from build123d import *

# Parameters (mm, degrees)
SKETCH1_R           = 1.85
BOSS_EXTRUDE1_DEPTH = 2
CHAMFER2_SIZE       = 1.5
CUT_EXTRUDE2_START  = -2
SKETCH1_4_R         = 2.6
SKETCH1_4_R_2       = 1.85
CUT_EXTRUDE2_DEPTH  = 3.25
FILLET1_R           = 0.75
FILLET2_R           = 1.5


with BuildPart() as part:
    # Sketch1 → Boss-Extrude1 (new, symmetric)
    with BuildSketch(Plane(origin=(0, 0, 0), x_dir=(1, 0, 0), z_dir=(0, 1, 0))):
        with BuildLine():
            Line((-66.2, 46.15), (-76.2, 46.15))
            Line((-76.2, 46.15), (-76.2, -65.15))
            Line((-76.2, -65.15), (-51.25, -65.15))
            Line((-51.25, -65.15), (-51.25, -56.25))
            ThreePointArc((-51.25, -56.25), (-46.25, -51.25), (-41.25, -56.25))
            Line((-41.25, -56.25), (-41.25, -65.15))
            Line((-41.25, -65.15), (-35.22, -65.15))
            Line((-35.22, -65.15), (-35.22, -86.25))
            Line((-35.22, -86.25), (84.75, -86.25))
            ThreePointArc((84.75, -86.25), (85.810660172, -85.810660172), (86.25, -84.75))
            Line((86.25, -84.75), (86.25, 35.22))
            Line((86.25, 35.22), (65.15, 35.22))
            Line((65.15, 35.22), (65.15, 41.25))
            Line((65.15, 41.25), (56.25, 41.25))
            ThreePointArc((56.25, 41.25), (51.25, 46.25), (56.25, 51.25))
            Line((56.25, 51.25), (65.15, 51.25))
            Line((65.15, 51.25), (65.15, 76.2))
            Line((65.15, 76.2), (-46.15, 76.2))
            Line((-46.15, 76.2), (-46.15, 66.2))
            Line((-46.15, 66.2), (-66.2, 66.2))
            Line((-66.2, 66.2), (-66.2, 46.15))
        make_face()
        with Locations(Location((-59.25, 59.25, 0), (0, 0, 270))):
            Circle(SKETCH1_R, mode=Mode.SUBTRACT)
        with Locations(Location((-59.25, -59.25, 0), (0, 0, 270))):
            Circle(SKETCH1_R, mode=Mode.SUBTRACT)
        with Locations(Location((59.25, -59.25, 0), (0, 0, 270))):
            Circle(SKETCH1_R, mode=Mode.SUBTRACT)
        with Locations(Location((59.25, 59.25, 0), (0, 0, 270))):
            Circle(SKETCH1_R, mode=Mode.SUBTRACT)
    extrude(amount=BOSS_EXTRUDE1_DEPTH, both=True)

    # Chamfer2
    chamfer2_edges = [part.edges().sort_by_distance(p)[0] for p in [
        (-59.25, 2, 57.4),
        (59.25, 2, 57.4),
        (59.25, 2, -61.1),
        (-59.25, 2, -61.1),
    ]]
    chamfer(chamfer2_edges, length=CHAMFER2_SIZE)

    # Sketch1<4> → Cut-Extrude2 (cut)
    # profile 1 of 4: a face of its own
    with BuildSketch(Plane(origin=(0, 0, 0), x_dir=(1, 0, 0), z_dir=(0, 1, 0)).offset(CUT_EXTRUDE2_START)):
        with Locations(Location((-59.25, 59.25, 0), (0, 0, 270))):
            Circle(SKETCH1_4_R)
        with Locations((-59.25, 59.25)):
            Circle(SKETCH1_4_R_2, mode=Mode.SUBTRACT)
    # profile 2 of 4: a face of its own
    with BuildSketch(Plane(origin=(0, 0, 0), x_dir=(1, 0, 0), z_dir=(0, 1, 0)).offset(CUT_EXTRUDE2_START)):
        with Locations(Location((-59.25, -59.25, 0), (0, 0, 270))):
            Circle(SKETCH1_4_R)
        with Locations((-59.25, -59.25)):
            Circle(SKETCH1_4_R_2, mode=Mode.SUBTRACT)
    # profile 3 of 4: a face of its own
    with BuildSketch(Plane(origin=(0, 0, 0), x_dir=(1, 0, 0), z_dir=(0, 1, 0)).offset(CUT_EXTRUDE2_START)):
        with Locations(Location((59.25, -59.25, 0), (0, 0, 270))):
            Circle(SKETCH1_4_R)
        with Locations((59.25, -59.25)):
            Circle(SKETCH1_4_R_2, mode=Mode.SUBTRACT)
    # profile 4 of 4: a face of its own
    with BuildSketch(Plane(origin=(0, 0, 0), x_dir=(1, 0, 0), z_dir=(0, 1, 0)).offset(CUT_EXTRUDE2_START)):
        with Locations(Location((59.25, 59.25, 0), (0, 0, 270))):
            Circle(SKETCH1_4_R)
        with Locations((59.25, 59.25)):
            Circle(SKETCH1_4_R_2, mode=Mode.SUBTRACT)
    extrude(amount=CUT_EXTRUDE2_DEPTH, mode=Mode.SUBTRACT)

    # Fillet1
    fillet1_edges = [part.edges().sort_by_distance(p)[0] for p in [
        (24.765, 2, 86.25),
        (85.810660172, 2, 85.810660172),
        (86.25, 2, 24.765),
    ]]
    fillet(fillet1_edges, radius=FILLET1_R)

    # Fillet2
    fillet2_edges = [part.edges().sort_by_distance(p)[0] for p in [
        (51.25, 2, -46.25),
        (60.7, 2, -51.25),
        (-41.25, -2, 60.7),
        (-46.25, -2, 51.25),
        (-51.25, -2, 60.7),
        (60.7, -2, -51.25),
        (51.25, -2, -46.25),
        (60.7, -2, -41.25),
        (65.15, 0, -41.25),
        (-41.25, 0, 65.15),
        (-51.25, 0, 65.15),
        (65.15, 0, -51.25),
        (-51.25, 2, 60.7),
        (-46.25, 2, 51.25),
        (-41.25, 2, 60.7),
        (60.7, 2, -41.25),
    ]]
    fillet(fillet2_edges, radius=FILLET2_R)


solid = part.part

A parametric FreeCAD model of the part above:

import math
import FreeCAD as App
import Part
import Sketcher

V = App.Vector


def edges_at(feature, points):
    """Names of the edges that pass closest to the given points."""
    edges = feature.Shape.Edges
    near = lambda p: min(range(len(edges)), key=lambda i: edges[i].distToShape(Part.Vertex(*p))[0])
    return sorted({f"Edge{near(p) + 1}" for p in points})

doc = App.newDocument("Part")
body = doc.addObject("PartDesign::Body", "Body")

sketch1 = body.newObject("Sketcher::SketchObject", "Sketch")
sketch1.AttachmentSupport = (doc.getObject("XZ_Plane"), [""])
sketch1.MapMode = "FlatFace"
sketch1.addGeometry(Part.LineSegment(V(-66.2, -46.1, 0), V(-76.2, -46.1, 0)), False)
sketch1.addGeometry(Part.LineSegment(V(-76.2, -46.1, 0), V(-76.2, 65.2, 0)), False)
sketch1.addGeometry(Part.LineSegment(V(-76.2, 65.2, 0), V(-51.2, 65.2, 0)), False)
sketch1.addGeometry(Part.LineSegment(V(-51.2, 65.2, 0), V(-51.2, 56.2, 0)), False)
sketch1.addGeometry(Part.ArcOfCircle(Part.Circle(V(-46.2, 56.2, 0), V(0, 0, 1), 5), math.radians(180), math.radians(360)), False)
sketch1.addGeometry(Part.LineSegment(V(-41.2, 56.2, 0), V(-41.2, 65.2, 0)), False)
sketch1.addGeometry(Part.LineSegment(V(-41.2, 65.2, 0), V(-35.2, 65.2, 0)), False)
sketch1.addGeometry(Part.LineSegment(V(-35.2, 65.2, 0), V(-35.2, 86.2, 0)), False)
sketch1.addGeometry(Part.LineSegment(V(-35.2, 86.2, 0), V(84.8, 86.2, 0)), False)
sketch1.addGeometry(Part.ArcOfCircle(Part.Circle(V(84.8, 84.8, 0), V(0, 0, 1), 1.5), math.radians(0), math.radians(90)), False)
sketch1.addGeometry(Part.LineSegment(V(86.2, 84.8, 0), V(86.2, -35.2, 0)), False)
sketch1.addGeometry(Part.LineSegment(V(86.2, -35.2, 0), V(65.2, -35.2, 0)), False)
sketch1.addGeometry(Part.LineSegment(V(65.2, -35.2, 0), V(65.2, -41.2, 0)), False)
sketch1.addGeometry(Part.LineSegment(V(65.2, -41.2, 0), V(56.2, -41.2, 0)), False)
sketch1.addGeometry(Part.ArcOfCircle(Part.Circle(V(56.2, -46.2, 0), V(0, 0, 1), 5), math.radians(90), math.radians(270)), False)
sketch1.addGeometry(Part.LineSegment(V(56.2, -51.2, 0), V(65.2, -51.2, 0)), False)
sketch1.addGeometry(Part.LineSegment(V(65.2, -51.2, 0), V(65.2, -76.2, 0)), False)
sketch1.addGeometry(Part.LineSegment(V(65.2, -76.2, 0), V(-46.1, -76.2, 0)), False)
sketch1.addGeometry(Part.LineSegment(V(-46.1, -76.2, 0), V(-46.1, -66.2, 0)), False)
sketch1.addGeometry(Part.LineSegment(V(-46.1, -66.2, 0), V(-66.2, -66.2, 0)), False)
sketch1.addGeometry(Part.LineSegment(V(-66.2, -66.2, 0), V(-66.2, -46.1, 0)), False)
sketch1.addGeometry(Part.Circle(V(-59.2, 59.2, 0), V(0, 0, 1), 1.9), False)
sketch1.addGeometry(Part.Circle(V(59.2, 59.2, 0), V(0, 0, 1), 1.9), False)
sketch1.addGeometry(Part.Circle(V(-59.2, -59.2, 0), V(0, 0, 1), 1.9), False)
sketch1.addGeometry(Part.Circle(V(59.2, -59.2, 0), V(0, 0, 1), 1.9), False)
sketch1.addConstraint(Sketcher.Constraint("Coincident", 0, 2, 1, 1))
sketch1.addConstraint(Sketcher.Constraint("Coincident", 1, 2, 2, 1))
sketch1.addConstraint(Sketcher.Constraint("Coincident", 2, 2, 3, 1))
sketch1.addConstraint(Sketcher.Constraint("Tangent", 3, 2, 4, 1))
sketch1.addConstraint(Sketcher.Constraint("Tangent", 4, 2, 5, 1))
sketch1.addConstraint(Sketcher.Constraint("Coincident", 5, 2, 6, 1))
sketch1.addConstraint(Sketcher.Constraint("Coincident", 6, 2, 7, 1))
sketch1.addConstraint(Sketcher.Constraint("Coincident", 7, 2, 8, 1))
sketch1.addConstraint(Sketcher.Constraint("Tangent", 8, 2, 9, 2))
sketch1.addConstraint(Sketcher.Constraint("Tangent", 9, 1, 10, 1))
sketch1.addConstraint(Sketcher.Constraint("Coincident", 10, 2, 11, 1))
sketch1.addConstraint(Sketcher.Constraint("Coincident", 11, 2, 12, 1))
sketch1.addConstraint(Sketcher.Constraint("Coincident", 12, 2, 13, 1))
sketch1.addConstraint(Sketcher.Constraint("Tangent", 13, 2, 14, 1))
sketch1.addConstraint(Sketcher.Constraint("Tangent", 14, 2, 15, 1))
sketch1.addConstraint(Sketcher.Constraint("Coincident", 15, 2, 16, 1))
sketch1.addConstraint(Sketcher.Constraint("Coincident", 16, 2, 17, 1))
sketch1.addConstraint(Sketcher.Constraint("Coincident", 17, 2, 18, 1))
sketch1.addConstraint(Sketcher.Constraint("Coincident", 18, 2, 19, 1))
sketch1.addConstraint(Sketcher.Constraint("Coincident", 19, 2, 20, 1))
sketch1.addConstraint(Sketcher.Constraint("Coincident", 20, 2, 0, 1))
sketch1.addConstraint(Sketcher.Constraint("Horizontal", 0))
sketch1.addConstraint(Sketcher.Constraint("Vertical", 1))
sketch1.addConstraint(Sketcher.Constraint("Horizontal", 2))
sketch1.addConstraint(Sketcher.Constraint("Vertical", 3))
sketch1.addConstraint(Sketcher.Constraint("Vertical", 5))
sketch1.addConstraint(Sketcher.Constraint("Horizontal", 6))
sketch1.addConstraint(Sketcher.Constraint("Vertical", 7))
sketch1.addConstraint(Sketcher.Constraint("Horizontal", 8))
sketch1.addConstraint(Sketcher.Constraint("Vertical", 10))
sketch1.addConstraint(Sketcher.Constraint("Horizontal", 11))
sketch1.addConstraint(Sketcher.Constraint("Vertical", 12))
sketch1.addConstraint(Sketcher.Constraint("Horizontal", 13))
sketch1.addConstraint(Sketcher.Constraint("Horizontal", 15))
sketch1.addConstraint(Sketcher.Constraint("Vertical", 16))
sketch1.addConstraint(Sketcher.Constraint("Horizontal", 17))
sketch1.addConstraint(Sketcher.Constraint("Vertical", 18))
sketch1.addConstraint(Sketcher.Constraint("Horizontal", 19))
sketch1.addConstraint(Sketcher.Constraint("Vertical", 20))
sketch1.addConstraint(Sketcher.Constraint("Equal", 4, 14))
sketch1.addConstraint(Sketcher.Constraint("Equal", 21, 22))
sketch1.addConstraint(Sketcher.Constraint("Equal", 22, 23))
sketch1.addConstraint(Sketcher.Constraint("Equal", 23, 24))
sketch1.addConstraint(Sketcher.Constraint("Symmetric", 22, 3, 23, 3, -1, 1))
sketch1.addConstraint(Sketcher.Constraint("Symmetric", 21, 3, 24, 3, -1, 1))
sketch1.addConstraint(Sketcher.Constraint("Symmetric", 21, 3, 22, 3, -2))
sketch1.addConstraint(Sketcher.Constraint("Horizontal", 2, 2, 5, 2))
sketch1.addConstraint(Sketcher.Constraint("Vertical", 12, 2, 15, 2))
sketch1.addConstraint(Sketcher.Constraint("Equal", 17, 1))
sketch1.addConstraint(Sketcher.Constraint("Equal", 15, 3))
sketch1.addConstraint(Sketcher.Constraint("Equal", 11, 7))
sketch1.addConstraint(Sketcher.Constraint("Equal", 8, 10))
sketch1.addConstraint(Sketcher.Constraint("Equal", 6, 12))
sketch1.addConstraint(Sketcher.Constraint("Equal", 2, 16))
sketch1.addConstraint(Sketcher.Constraint("Equal", 0, 18))
sketch1.addConstraint(Sketcher.Constraint("Radius", 4, 5.0))
sketch1.addConstraint(Sketcher.Constraint("Diameter", 21, 3.7))
sketch1.addConstraint(Sketcher.Constraint("Radius", 9, 1.5))
sketch1.addConstraint(Sketcher.Constraint("DistanceX", 0, 2, 0, 1, 10.0))
sketch1.addConstraint(Sketcher.Constraint("DistanceX", 11, 2, 11, 1, 21.1))
sketch1.addConstraint(Sketcher.Constraint("DistanceX", 13, 2, 13, 1, 8.9))
sketch1.addConstraint(Sketcher.Constraint("DistanceX", 17, 2, 17, 1, 111.3))
sketch1.addConstraint(Sketcher.Constraint("DistanceX", 4, 3, 9, 3, 131.0))
sketch1.addConstraint(Sketcher.Constraint("DistanceX", 21, 3, 4, 3, 13.0))
sketch1.addConstraint(Sketcher.Constraint("DistanceY", 4, 3, 21, 3, 3.0))
sketch1.addConstraint(Sketcher.Constraint("DistanceX", 14, 3, 22, 3, 3.0))
sketch1.addConstraint(Sketcher.Constraint("DistanceY", 23, 3, 14, 3, 13.0))
sketch1.addConstraint(Sketcher.Constraint("DistanceX", 2, 1, 2, 2, 24.95))
sketch1.addConstraint(Sketcher.Constraint("DistanceX", 6, 1, 6, 2, 6.03))
pad1 = body.newObject("PartDesign::Pad", "Pad")
pad1.Profile = sketch1
pad1.Length = 4
pad1.Midplane = True
doc.recompute()

chamfer = body.newObject("PartDesign::Chamfer", "Chamfer")
chamfer.Base = (pad1, edges_at(pad1, [
    (-59.25, 2, 57.4),
    (59.25, 2, 57.4),
    (59.25, 2, -61.1),
    (-59.25, 2, -61.1),
]))
chamfer.Size = 1.5

sketch2 = body.newObject("Sketcher::SketchObject", "Sketch001")
sketch2.AttachmentSupport = (doc.getObject("XZ_Plane"), [""])
sketch2.MapMode = "FlatFace"
sketch2.AttachmentOffset = App.Placement(V(0, 0, 2), App.Rotation())
sketch2.addGeometry(Part.Circle(V(-59.2, -59.2, 0), V(0, 0, 1), 2.6), False)
sketch2.addGeometry(Part.Circle(V(-59.2, -59.2, 0), V(0, 0, 1), 1.9), False)
sketch2.addGeometry(Part.Circle(V(-59.2, 59.2, 0), V(0, 0, 1), 2.6), False)
sketch2.addGeometry(Part.Circle(V(-59.2, 59.2, 0), V(0, 0, 1), 1.9), False)
sketch2.addGeometry(Part.Circle(V(59.2, 59.2, 0), V(0, 0, 1), 2.6), False)
sketch2.addGeometry(Part.Circle(V(59.2, 59.2, 0), V(0, 0, 1), 1.9), False)
sketch2.addGeometry(Part.Circle(V(59.2, -59.2, 0), V(0, 0, 1), 2.6), False)
sketch2.addGeometry(Part.Circle(V(59.2, -59.2, 0), V(0, 0, 1), 1.9), False)
sketch2.addConstraint(Sketcher.Constraint("Coincident", 1, 3, 0, 3))
sketch2.addConstraint(Sketcher.Constraint("Coincident", 3, 3, 2, 3))
sketch2.addConstraint(Sketcher.Constraint("Coincident", 5, 3, 4, 3))
sketch2.addConstraint(Sketcher.Constraint("Coincident", 7, 3, 6, 3))
sketch2.addConstraint(Sketcher.Constraint("Equal", 0, 2))
sketch2.addConstraint(Sketcher.Constraint("Equal", 1, 3))
sketch2.addConstraint(Sketcher.Constraint("Equal", 2, 4))
sketch2.addConstraint(Sketcher.Constraint("Equal", 3, 5))
sketch2.addConstraint(Sketcher.Constraint("Equal", 4, 6))
sketch2.addConstraint(Sketcher.Constraint("Equal", 5, 7))
sketch2.addConstraint(Sketcher.Constraint("Symmetric", 0, 3, 4, 3, -1, 1))
sketch2.addConstraint(Sketcher.Constraint("Symmetric", 2, 3, 6, 3, -1, 1))
sketch2.addConstraint(Sketcher.Constraint("Symmetric", 2, 3, 4, 3, -2))
sketch2.addConstraint(Sketcher.Constraint("Diameter", 0, 5.2))
sketch2.addConstraint(Sketcher.Constraint("Diameter", 1, 3.7))
sketch2.addConstraint(Sketcher.Constraint("DistanceY", 0, 3, 2, 3, 118.5))
sketch2.addConstraint(Sketcher.Constraint("DistanceX", 2, 3, 4, 3, 118.5))
pocket1 = body.newObject("PartDesign::Pocket", "Pocket")
pocket1.Profile = sketch2
pocket1.Length = 3.25
doc.recompute()

fillet = body.newObject("PartDesign::Fillet", "Fillet")
fillet.Base = (pocket1, edges_at(pocket1, [(24.765, 2, 86.25), (85.811, 2, 85.811), (86.25, 2, 24.765)]))
fillet.Radius = 0.75
doc.recompute()

fillet2 = body.newObject("PartDesign::Fillet", "Fillet001")
fillet2.Base = (fillet, edges_at(fillet, [
    (51.25, 2, -46.25),
    (60.7, 2, -51.25),
    (-41.25, -2, 60.7),
    (-46.25, -2, 51.25),
    (-51.25, -2, 60.7),
    (60.7, -2, -51.25),
    (51.25, -2, -46.25),
    (60.7, -2, -41.25),
    (65.15, 0, -41.25),
    (-41.25, 0, 65.15),
    (-51.25, 0, 65.15),
    (65.15, 0, -51.25),
    (-51.25, 2, 60.7),
    (-46.25, 2, 51.25),
    (-41.25, 2, 60.7),
    (60.7, 2, -41.25),
]))
fillet2.Radius = 1.5

doc.recompute()
